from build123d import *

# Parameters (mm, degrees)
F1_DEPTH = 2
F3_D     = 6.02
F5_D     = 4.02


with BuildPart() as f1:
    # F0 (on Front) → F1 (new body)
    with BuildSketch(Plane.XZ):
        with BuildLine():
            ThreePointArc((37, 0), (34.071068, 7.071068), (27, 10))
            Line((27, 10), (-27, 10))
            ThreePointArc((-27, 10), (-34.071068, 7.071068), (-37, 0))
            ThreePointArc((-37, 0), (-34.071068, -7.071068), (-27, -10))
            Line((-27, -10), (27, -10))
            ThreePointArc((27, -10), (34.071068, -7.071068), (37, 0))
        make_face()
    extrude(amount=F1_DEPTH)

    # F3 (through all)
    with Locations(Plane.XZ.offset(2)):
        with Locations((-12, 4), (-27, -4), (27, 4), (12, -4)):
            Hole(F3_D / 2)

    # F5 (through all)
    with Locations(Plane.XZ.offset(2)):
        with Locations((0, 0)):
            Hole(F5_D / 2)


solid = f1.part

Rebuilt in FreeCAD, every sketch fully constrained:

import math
import FreeCAD as App
import Part
import Sketcher
from FreeCAD import Vector

doc = App.newDocument("Part")
params = doc.addObject("Spreadsheet::Sheet", "Params")
for row, (alias, value) in enumerate([
    ("sketch1_radius", "9.999999 mm"),
    ("sketch1_width", "54 mm"),
    ("pad1_length", "2 mm"),
    ("sketch2_diameter", "6.02 mm"),
    ("hole_diameter", "6.02 mm"),
    ("sketch3_diameter", "4.02 mm"),
    ("hole2_diameter", "4.02 mm"),
], start=1):
    params.set(f"A{row}", alias)
    params.set(f"B{row}", "=" + value)
    params.setAlias(f"B{row}", alias)

body = doc.addObject("PartDesign::Body", "Body")

sketch1 = body.newObject("Sketcher::SketchObject", "Sketch")
sketch1.AttachmentSupport = (doc.getObject("XZ_Plane"), [""])
sketch1.MapMode = "FlatFace"
sketch1.addGeometry([
    Part.ArcOfCircle(Part.Circle(Vector(27.000001, 0.000001, 0), Vector(0, 0, 1), 9.999999), math.radians(-0.000004), math.radians(90.000004)),
    Part.LineSegment(Vector(27, 10, 0), Vector(-27, 10, 0)),
    Part.ArcOfCircle(Part.Circle(Vector(-27.000001, 0.000001, 0), Vector(0, 0, 1), 9.999999), math.radians(89.999996), math.radians(180.000004)),
    Part.ArcOfCircle(Part.Circle(Vector(-27.000001, -0.000001, 0), Vector(0, 0, 1), 9.999999), math.radians(179.999996), math.radians(270.000004)),
    Part.LineSegment(Vector(-27, -10, 0), Vector(27, -10, 0)),
    Part.ArcOfCircle(Part.Circle(Vector(27.000001, -0.000001, 0), Vector(0, 0, 1), 9.999999), math.radians(-90.000004), math.radians(0.000004)),
], False)
sketch1.addConstraint([
    Sketcher.Constraint("Tangent", 0, 2, 1, 1),
    Sketcher.Constraint("Tangent", 1, 2, 2, 1),
    Sketcher.Constraint("Tangent", 2, 2, 3, 1),
    Sketcher.Constraint("Tangent", 3, 2, 4, 1),
    Sketcher.Constraint("Tangent", 4, 2, 5, 1),
    Sketcher.Constraint("Tangent", 5, 2, 0, 1),
    Sketcher.Constraint("Horizontal", 1),
    Sketcher.Constraint("Horizontal", 4),
    Sketcher.Constraint("Equal", 0, 2),
    Sketcher.Constraint("Equal", 2, 3),
    Sketcher.Constraint("Symmetric", 0, 3, 2, 3, -1, 1),
    Sketcher.Constraint("PointOnObject", 2, 2, -1),
    Sketcher.Constraint("PointOnObject", 5, 2, -1),
    Sketcher.Constraint("Radius", 0, 9.999999),
    Sketcher.Constraint("DistanceX", 1, 2, 1, 1, 54.0),
])
sketch1.setExpression("Constraints[13]", "Params.sketch1_radius")
sketch1.setExpression("Constraints[14]", "Params.sketch1_width")
pad1 = body.newObject("PartDesign::Pad", "Pad")
pad1.Profile = sketch1
pad1.setExpression("Length", "Params.pad1_length")

sketch2 = body.newObject("Sketcher::SketchObject", "Sketch001")
sketch2.AttachmentSupport = (doc.getObject("XZ_Plane"), [""])
sketch2.MapMode = "FlatFace"
sketch2.AttachmentOffset = App.Placement(Vector(0, 0, 2), App.Rotation())
sketch2.addGeometry([
    Part.Circle(Vector(-12, 4, 0), Vector(0, 0, 1), 3.01),
    Part.Circle(Vector(-27, -4, 0), Vector(0, 0, 1), 3.01),
    Part.Circle(Vector(27, 4, 0), Vector(0, 0, 1), 3.01),
    Part.Circle(Vector(12, -4, 0), Vector(0, 0, 1), 3.01),
], False)
sketch2.addConstraint([
    Sketcher.Constraint("Equal", 0, 1),
    Sketcher.Constraint("Equal", 1, 2),
    Sketcher.Constraint("Equal", 2, 3),
    Sketcher.Constraint("Symmetric", 1, 3, 2, 3, -1, 1),
    Sketcher.Constraint("Symmetric", 0, 3, 3, 3, -1, 1),
    Sketcher.Constraint("Horizontal", 0, 3, 2, 3),
    Sketcher.Constraint("Diameter", 0, 6.02),
    Sketcher.Constraint("DistanceX", 0, 3, -1, 1, 12.0),
    Sketcher.Constraint("DistanceY", -1, 1, 0, 3, 4.0),
    Sketcher.Constraint("DistanceX", 1, 3, -1, 1, 27.0),
])
sketch2.setExpression("Constraints[6]", "Params.sketch2_diameter")
doc.recompute()
hole = body.newObject("PartDesign::Hole", "Hole")
hole.Profile = sketch2
hole.ThreadType = "None"
hole.setExpression("Diameter", "Params.hole_diameter")
hole.DepthType = "ThroughAll"

sketch3 = body.newObject("Sketcher::SketchObject", "Sketch002")
sketch3.AttachmentSupport = (doc.getObject("XZ_Plane"), [""])
sketch3.MapMode = "FlatFace"
sketch3.AttachmentOffset = App.Placement(Vector(0, 0, 2), App.Rotation())
sketch3.addGeometry(Part.Circle(Vector(0, 0, 0), Vector(0, 0, 1), 2.01), False)
sketch3.addConstraint([
    Sketcher.Constraint("Coincident", 0, 3, -1, 1),
    Sketcher.Constraint("Diameter", 0, 4.02),
])
sketch3.setExpression("Constraints[1]", "Params.sketch3_diameter")
doc.recompute()
hole2 = body.newObject("PartDesign::Hole", "Hole001")
hole2.Profile = sketch3
hole2.ThreadType = "None"
hole2.setExpression("Diameter", "Params.hole2_diameter")
hole2.DepthType = "ThroughAll"

doc.recompute()
